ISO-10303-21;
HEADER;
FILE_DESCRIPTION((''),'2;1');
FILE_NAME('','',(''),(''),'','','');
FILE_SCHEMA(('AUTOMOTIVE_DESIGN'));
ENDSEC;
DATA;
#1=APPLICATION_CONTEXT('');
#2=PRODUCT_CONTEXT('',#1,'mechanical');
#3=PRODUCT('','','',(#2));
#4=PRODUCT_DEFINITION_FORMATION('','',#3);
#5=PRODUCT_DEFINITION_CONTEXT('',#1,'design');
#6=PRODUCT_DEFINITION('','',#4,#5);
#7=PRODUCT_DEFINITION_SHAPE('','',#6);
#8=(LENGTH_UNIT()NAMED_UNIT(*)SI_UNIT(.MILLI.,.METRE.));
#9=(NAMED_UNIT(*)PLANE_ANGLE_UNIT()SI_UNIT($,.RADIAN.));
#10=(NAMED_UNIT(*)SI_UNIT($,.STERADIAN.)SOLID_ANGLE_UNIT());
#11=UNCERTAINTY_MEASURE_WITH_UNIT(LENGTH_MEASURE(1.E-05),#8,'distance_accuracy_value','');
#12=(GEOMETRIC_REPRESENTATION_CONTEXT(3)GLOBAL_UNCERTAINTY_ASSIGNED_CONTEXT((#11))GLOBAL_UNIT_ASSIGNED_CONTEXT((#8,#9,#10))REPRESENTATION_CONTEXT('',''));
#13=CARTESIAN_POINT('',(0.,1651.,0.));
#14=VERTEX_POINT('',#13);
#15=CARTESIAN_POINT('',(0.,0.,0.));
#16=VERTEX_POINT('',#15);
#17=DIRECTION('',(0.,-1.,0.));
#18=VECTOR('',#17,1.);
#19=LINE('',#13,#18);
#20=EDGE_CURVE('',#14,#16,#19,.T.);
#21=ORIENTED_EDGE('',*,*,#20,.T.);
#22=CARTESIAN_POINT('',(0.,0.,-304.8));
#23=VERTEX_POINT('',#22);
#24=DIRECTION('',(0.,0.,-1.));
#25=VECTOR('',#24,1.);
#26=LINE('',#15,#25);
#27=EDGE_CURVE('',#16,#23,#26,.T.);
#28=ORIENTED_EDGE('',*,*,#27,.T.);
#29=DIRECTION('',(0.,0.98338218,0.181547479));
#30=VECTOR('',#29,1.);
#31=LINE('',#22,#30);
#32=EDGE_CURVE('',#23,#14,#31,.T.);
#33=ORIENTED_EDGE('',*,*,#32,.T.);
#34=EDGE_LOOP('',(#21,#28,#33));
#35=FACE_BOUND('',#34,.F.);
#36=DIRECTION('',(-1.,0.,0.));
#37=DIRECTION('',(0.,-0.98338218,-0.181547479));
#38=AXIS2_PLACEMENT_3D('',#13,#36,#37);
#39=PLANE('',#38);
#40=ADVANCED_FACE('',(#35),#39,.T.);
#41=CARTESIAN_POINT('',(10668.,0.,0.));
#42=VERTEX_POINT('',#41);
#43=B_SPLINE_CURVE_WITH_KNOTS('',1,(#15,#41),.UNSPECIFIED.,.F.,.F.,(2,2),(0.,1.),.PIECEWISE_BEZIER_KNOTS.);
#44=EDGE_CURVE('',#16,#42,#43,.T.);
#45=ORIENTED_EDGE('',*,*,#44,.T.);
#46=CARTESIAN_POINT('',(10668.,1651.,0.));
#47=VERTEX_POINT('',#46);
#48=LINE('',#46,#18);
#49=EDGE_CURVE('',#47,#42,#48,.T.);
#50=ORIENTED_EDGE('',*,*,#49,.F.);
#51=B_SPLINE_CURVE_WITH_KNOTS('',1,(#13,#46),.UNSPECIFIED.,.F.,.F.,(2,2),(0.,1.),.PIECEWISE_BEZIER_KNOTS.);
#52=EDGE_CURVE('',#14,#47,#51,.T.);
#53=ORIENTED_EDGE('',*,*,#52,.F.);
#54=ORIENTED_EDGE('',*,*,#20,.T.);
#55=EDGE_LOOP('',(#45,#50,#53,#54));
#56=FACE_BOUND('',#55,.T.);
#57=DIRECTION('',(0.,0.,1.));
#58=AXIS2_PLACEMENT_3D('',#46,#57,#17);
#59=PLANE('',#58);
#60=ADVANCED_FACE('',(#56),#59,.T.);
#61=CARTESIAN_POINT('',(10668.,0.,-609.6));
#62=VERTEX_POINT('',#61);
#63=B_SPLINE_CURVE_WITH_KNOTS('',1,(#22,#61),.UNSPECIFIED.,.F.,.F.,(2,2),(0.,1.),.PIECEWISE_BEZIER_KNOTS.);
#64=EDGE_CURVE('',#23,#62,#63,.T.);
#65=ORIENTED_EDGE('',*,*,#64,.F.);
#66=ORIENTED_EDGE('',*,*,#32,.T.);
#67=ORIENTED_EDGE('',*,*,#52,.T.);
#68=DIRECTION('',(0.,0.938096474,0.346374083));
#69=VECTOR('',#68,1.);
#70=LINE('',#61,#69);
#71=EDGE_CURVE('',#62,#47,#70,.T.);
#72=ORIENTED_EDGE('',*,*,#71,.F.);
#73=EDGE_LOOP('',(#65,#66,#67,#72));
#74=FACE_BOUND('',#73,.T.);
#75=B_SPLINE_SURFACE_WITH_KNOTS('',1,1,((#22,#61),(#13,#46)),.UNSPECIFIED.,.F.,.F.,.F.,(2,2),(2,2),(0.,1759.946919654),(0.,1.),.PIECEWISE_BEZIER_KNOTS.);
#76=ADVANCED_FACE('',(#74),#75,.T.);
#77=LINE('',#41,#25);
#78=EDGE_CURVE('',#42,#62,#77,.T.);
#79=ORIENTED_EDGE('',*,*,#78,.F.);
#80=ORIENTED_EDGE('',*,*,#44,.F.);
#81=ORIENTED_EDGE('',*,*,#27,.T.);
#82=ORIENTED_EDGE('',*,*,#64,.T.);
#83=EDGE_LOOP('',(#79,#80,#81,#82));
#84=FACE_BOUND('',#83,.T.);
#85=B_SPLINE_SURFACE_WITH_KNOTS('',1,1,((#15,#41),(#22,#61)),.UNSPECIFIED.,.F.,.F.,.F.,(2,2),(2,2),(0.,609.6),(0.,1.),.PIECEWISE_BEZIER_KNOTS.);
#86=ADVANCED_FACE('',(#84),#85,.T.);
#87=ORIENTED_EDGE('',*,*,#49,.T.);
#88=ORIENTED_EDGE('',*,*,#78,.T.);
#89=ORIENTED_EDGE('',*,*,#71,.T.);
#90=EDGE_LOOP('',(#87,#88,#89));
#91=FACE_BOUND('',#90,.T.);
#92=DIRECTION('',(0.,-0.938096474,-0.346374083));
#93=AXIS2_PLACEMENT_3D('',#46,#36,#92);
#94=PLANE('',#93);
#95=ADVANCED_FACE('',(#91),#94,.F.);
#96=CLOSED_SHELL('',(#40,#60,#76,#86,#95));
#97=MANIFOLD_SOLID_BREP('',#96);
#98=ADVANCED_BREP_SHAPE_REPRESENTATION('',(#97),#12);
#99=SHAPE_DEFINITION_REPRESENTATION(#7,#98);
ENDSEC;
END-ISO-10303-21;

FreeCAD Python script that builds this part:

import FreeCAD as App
import Part
import Sketcher
Q = App.Units.Quantity


def add_polygon(sketch, points):
    """Adds a closed chain of lines whose ends are joined by coincident constraints."""
    first, n = sketch.GeometryCount, len(points)
    for a, b in zip(points, points[1:] + points[:1]):
        sketch.addGeometry(Part.LineSegment(App.Vector(*a, 0), App.Vector(*b, 0)), False)
    for i in range(n):
        sketch.addConstraint(Sketcher.Constraint("Coincident", first + i, 2, first + (i + 1) % n, 1))

doc = App.newDocument("Part")
body = doc.addObject("PartDesign::Body", "Body")

sketch1 = body.newObject("Sketcher::SketchObject", "Sketch")
sketch1.AttachmentSupport = (doc.getObject("YZ_Plane"), [""])
sketch1.MapMode = "FlatFace"
add_polygon(sketch1, [(1651, 0), (0, 0), (0, -305)])
sketch1.addConstraint([
    Sketcher.Constraint("Horizontal", 0),
    Sketcher.Constraint("Vertical", 1),
    Sketcher.Constraint("Coincident", 0, 2, -1, 1),
    Sketcher.Constraint("DistanceX", 0, 2, 0, 1, Q("65 in")),
    Sketcher.Constraint("DistanceY", 1, 2, 1, 1, Q("12 in")),
])

sketch2 = body.newObject("Sketcher::SketchObject", "Sketch001")
sketch2.AttachmentSupport = (doc.getObject("YZ_Plane"), [""])
sketch2.MapMode = "FlatFace"
sketch2.AttachmentOffset = App.Placement(App.Vector(0, 0, 420 * 25.4), App.Rotation())
add_polygon(sketch2, [(1651, 0), (0, 0), (0, -610)])
sketch2.addConstraint([
    Sketcher.Constraint("Horizontal", 0),
    Sketcher.Constraint("Vertical", 1),
    Sketcher.Constraint("Coincident", 0, 2, -1, 1),
    Sketcher.Constraint("DistanceX", 0, 2, 0, 1, Q("65 in")),
    Sketcher.Constraint("DistanceY", 1, 2, 1, 1, Q("24 in")),
])

additiveloft = body.newObject("PartDesign::AdditiveLoft", "AdditiveLoft")
additiveloft.Profile = sketch1
additiveloft.Sections = [sketch2]

doc.recompute()
